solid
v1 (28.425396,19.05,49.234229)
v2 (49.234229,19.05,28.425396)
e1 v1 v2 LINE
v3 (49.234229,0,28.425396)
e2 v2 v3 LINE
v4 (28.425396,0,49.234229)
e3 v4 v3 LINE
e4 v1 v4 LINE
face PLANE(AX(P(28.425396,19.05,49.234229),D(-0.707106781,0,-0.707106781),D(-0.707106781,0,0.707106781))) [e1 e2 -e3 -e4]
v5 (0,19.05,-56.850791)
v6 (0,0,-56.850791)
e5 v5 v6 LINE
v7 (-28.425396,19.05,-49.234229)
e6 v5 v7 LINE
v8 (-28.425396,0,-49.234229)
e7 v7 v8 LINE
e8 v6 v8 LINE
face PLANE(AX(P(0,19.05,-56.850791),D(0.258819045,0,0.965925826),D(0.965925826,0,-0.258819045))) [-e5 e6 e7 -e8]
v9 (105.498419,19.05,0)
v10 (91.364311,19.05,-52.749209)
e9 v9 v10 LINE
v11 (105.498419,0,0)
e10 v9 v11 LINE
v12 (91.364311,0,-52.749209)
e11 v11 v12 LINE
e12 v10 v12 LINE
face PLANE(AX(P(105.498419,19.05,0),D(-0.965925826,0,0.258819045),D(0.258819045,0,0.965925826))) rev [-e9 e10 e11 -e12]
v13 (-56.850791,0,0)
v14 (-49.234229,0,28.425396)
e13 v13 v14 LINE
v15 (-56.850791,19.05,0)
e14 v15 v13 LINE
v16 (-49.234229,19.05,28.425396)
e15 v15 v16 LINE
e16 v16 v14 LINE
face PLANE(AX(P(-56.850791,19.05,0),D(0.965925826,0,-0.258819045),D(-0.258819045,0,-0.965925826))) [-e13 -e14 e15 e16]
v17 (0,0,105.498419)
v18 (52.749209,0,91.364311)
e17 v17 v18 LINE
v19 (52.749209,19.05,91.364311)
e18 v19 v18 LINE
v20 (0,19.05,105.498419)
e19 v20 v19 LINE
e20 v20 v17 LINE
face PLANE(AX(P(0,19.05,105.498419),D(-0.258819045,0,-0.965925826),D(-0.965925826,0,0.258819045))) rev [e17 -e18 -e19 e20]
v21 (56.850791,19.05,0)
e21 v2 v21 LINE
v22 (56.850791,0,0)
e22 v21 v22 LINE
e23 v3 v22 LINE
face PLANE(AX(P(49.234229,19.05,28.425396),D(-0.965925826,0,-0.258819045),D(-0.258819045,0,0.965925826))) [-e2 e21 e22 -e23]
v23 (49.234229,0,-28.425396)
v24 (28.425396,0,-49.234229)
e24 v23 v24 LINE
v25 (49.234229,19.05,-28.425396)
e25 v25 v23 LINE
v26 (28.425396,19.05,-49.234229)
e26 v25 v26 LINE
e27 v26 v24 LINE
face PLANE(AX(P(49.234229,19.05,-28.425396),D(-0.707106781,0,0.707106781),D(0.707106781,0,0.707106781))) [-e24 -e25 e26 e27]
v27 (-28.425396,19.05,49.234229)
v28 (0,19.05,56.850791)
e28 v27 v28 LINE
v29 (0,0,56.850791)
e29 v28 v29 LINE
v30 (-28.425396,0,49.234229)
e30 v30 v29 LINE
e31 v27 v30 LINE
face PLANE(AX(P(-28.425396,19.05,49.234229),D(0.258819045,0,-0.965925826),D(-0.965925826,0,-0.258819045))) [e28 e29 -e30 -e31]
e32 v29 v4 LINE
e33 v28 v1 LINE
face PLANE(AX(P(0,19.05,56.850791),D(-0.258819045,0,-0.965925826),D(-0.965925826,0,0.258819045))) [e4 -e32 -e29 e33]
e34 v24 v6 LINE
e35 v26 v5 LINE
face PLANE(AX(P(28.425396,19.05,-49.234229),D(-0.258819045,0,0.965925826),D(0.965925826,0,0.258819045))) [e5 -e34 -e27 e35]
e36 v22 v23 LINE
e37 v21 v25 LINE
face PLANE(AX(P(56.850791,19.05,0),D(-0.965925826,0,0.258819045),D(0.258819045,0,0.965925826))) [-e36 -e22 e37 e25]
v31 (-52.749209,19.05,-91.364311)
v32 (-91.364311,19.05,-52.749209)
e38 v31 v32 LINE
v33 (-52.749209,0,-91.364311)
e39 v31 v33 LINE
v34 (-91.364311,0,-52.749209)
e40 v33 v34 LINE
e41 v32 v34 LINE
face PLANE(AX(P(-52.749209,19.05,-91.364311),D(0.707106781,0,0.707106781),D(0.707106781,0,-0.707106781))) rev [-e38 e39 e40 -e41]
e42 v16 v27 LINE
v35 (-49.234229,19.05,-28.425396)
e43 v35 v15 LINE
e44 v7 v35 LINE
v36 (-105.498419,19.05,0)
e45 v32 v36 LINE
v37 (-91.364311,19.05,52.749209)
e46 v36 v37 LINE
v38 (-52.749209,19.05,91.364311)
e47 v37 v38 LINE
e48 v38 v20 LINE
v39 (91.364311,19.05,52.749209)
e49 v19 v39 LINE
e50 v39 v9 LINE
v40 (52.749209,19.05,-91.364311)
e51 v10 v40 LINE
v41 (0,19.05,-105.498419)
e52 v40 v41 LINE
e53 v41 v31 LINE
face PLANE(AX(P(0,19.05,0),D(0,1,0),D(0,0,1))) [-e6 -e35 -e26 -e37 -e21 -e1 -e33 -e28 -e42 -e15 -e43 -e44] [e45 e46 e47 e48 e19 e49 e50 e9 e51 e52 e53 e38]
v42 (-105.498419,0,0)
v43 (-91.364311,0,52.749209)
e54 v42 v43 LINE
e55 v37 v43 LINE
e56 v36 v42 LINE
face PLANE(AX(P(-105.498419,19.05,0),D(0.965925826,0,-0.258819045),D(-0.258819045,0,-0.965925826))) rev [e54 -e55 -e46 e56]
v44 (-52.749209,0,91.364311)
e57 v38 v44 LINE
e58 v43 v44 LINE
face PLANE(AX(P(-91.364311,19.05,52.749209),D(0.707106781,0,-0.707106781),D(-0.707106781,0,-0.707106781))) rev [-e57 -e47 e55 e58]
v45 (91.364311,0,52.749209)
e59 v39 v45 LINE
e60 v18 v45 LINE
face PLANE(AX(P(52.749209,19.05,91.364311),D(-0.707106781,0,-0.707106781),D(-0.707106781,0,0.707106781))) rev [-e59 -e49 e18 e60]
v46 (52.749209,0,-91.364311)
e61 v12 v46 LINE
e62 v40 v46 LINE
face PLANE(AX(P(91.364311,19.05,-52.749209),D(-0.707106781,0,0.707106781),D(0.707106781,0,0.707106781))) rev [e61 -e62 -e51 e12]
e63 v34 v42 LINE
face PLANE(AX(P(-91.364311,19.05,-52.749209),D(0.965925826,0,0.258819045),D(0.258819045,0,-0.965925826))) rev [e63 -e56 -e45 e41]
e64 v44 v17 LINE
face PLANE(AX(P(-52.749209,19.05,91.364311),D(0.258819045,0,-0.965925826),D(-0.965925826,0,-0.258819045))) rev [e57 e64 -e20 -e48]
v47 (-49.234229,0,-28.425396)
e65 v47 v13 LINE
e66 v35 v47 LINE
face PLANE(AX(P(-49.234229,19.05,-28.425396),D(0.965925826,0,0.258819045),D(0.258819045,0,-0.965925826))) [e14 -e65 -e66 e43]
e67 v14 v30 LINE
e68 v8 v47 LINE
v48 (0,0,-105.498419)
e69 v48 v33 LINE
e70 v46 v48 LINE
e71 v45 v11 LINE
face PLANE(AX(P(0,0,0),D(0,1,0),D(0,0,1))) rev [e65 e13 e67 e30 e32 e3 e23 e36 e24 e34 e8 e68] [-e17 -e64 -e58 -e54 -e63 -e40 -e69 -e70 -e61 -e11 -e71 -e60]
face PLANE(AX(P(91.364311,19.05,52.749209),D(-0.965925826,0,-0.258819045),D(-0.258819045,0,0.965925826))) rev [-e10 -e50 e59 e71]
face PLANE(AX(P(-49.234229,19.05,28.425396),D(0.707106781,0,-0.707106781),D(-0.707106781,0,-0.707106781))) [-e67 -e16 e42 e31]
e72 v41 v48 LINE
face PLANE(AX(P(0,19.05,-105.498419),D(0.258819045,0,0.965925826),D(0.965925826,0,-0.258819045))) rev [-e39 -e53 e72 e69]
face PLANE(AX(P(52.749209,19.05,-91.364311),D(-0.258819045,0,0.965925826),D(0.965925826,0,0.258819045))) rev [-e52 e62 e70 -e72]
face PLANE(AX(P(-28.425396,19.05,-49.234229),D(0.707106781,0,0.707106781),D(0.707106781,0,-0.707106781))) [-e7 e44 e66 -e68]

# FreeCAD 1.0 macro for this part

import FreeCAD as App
import Part
import Sketcher

V = App.Vector
Q = App.Units.Quantity


def add_polygon(sketch, points):
    """Adds a closed chain of lines whose ends are joined by coincident constraints."""
    first, n = sketch.GeometryCount, len(points)
    for a, b in zip(points, points[1:] + points[:1]):
        sketch.addGeometry(Part.LineSegment(App.Vector(*a, 0), App.Vector(*b, 0)), False)
    for i in range(n):
        sketch.addConstraint(Sketcher.Constraint("Coincident", first + i, 2, first + (i + 1) % n, 1))

doc = App.newDocument("Part")
body = doc.addObject("PartDesign::Body", "Body")

sketch1 = doc.addObject("Sketcher::SketchObject", "Sketch")
body.addObject(sketch1)
sketch1.AttachmentSupport = (doc.XZ_Plane, [""])
sketch1.MapMode = "FlatFace"
add_polygon(sketch1, [(105, 0), (91, -53), (53, -91), (0, -105), (-53, -91), (-91, -53), (-105, 0), (-91, 53), (-53, 91), (0, 105), (53, 91), (91, 53)])
add_polygon(sketch1, [(49, -28), (57, 0), (49, 28), (28, 49), (0, 57), (-28, 49), (-49, 28), (-57, 0), (-49, -28), (-28, -49), (0, -57), (28, -49)])
sketch1.addConstraint([
    Sketcher.Constraint("Symmetric", 0, 2, 6, 2, -1, 1),
    Sketcher.Constraint("Symmetric", 1, 2, 7, 2, -1, 1),
    Sketcher.Constraint("Symmetric", 2, 2, 8, 2, -1, 1),
    Sketcher.Constraint("Symmetric", 3, 2, 9, 2, -1, 1),
    Sketcher.Constraint("Symmetric", 4, 2, 10, 2, -1, 1),
    Sketcher.Constraint("Symmetric", 5, 2, 11, 2, -1, 1),
    Sketcher.Constraint("Symmetric", 12, 2, 18, 2, -1, 1),
    Sketcher.Constraint("Symmetric", 13, 2, 19, 2, -1, 1),
    Sketcher.Constraint("Symmetric", 14, 2, 20, 2, -1, 1),
    Sketcher.Constraint("Symmetric", 15, 2, 21, 2, -1, 1),
    Sketcher.Constraint("Symmetric", 16, 2, 22, 2, -1, 1),
    Sketcher.Constraint("Symmetric", 17, 2, 23, 2, -1, 1),
    Sketcher.Constraint("Symmetric", 1, 2, 3, 2, -2),
    Sketcher.Constraint("Symmetric", 0, 2, 4, 2, -2),
    Sketcher.Constraint("Symmetric", 14, 2, 16, 2, -2),
    Sketcher.Constraint("Symmetric", 13, 2, 17, 2, -2),
    Sketcher.Constraint("PointOnObject", 2, 2, -2),
    Sketcher.Constraint("PointOnObject", 5, 2, -1),
    Sketcher.Constraint("PointOnObject", 12, 2, -1),
    Sketcher.Constraint("PointOnObject", 15, 2, -2),
    Sketcher.Constraint("Perpendicular", 0, 3),
    Sketcher.Constraint("Perpendicular", 1, 4),
    Sketcher.Constraint("Perpendicular", 9, 12),
    Sketcher.Constraint("Parallel", 10, 14),
    Sketcher.Constraint("Perpendicular", 12, 15),
    Sketcher.Constraint("Equal", 0, 1),
    Sketcher.Constraint("Equal", 1, 2),
    Sketcher.Constraint("Equal", 13, 14),
    Sketcher.Constraint("Equal", 14, 15),
    Sketcher.Constraint("Angle", 0, Q("-105 deg")),
    Sketcher.Constraint("Distance", 0, Q("2.15 in")),
    Sketcher.Constraint("DistanceX", 12, 2, 0, 2, Q("1.3588 in")),
])
pad1 = doc.addObject("PartDesign::Pad", "Pad")
body.addObject(pad1)
pad1.Profile = sketch1
pad1.Length = Q("0.75 in")
pad1.Reversed = True

doc.recompute()
